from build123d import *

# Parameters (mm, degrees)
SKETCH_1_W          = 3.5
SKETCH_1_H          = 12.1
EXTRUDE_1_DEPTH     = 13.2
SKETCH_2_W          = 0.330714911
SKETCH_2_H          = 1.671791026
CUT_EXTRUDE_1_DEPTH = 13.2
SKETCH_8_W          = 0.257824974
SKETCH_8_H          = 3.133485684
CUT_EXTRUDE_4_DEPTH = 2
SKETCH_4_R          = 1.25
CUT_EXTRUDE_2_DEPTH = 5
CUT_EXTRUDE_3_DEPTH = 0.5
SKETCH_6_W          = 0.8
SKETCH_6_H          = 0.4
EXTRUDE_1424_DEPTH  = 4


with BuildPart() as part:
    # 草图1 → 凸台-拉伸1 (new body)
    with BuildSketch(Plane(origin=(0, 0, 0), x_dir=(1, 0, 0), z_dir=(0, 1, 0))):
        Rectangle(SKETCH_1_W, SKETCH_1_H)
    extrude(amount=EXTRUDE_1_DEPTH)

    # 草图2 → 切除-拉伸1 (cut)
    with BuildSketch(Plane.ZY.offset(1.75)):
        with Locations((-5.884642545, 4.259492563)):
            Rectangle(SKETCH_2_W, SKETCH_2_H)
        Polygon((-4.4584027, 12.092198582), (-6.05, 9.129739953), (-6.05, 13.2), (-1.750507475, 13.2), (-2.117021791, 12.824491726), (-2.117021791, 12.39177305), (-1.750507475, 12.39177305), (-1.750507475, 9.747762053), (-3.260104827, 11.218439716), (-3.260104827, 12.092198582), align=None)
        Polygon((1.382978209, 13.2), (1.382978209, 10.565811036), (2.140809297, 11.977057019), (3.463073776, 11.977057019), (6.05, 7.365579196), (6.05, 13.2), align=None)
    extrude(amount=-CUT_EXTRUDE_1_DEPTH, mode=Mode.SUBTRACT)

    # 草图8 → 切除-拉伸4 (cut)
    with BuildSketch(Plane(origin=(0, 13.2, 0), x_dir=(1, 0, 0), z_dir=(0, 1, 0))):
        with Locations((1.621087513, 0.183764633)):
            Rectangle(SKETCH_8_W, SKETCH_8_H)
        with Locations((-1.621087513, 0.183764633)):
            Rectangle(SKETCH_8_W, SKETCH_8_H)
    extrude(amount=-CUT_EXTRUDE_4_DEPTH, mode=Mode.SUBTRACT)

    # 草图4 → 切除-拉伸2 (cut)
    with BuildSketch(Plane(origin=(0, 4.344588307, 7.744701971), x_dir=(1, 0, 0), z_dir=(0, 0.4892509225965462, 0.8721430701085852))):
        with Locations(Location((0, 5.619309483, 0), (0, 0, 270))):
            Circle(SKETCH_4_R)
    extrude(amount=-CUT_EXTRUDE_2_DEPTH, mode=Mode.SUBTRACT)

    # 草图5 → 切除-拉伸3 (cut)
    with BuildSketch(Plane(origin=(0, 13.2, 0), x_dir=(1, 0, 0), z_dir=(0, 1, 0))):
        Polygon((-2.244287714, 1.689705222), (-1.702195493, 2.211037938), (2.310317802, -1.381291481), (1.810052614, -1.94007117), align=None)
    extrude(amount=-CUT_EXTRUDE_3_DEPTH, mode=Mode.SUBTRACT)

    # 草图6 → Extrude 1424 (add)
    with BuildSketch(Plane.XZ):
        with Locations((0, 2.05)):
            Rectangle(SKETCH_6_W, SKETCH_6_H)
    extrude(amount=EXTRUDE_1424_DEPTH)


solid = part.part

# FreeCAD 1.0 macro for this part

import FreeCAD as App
import Part
import Sketcher

V = App.Vector
Q = App.Units.Quantity

doc = App.newDocument("Part")
body = doc.addObject("PartDesign::Body", "Body")

# Sketch on XZ plane
sketch1 = body.newObject("Sketcher::SketchObject", "Sketch")
sketch1.AttachmentSupport = (doc.getObject("XZ_Plane"), [""])
sketch1.MapMode = "FlatFace"
sketch1.addGeometry([
    Part.LineSegment(V(-1.75, -6.05, 0), V(-1.75, 6.05, 0)),
    Part.LineSegment(V(-1.75, 6.05, 0), V(1.75, 6.05, 0)),
    Part.LineSegment(V(1.75, 6.05, 0), V(1.75, -6.05, 0)),
    Part.LineSegment(V(1.75, -6.05, 0), V(-1.75, -6.05, 0)),
], False)
sketch1.addConstraint([
    Sketcher.Constraint("Coincident", 0, 2, 1, 1),
    Sketcher.Constraint("Coincident", 1, 2, 2, 1),
    Sketcher.Constraint("Coincident", 2, 2, 3, 1),
    Sketcher.Constraint("Coincident", 3, 2, 0, 1),
    Sketcher.Constraint("Vertical", 0),
    Sketcher.Constraint("Horizontal", 1),
    Sketcher.Constraint("Vertical", 2),
    Sketcher.Constraint("Horizontal", 3),
    Sketcher.Constraint("Symmetric", 0, 2, 2, 2, -1, 1),
    Sketcher.Constraint("DistanceX", 1, 1, 1, 2, Q("3.5 mm")),
    Sketcher.Constraint("DistanceY", 0, 1, 0, 2, Q("12.1 mm")),
])
pad1 = body.newObject("PartDesign::Pad", "Pad")
pad1.Profile = sketch1
pad1.Length = 13.2
pad1.Reversed = True

# Sketch on YZ plane
sketch2 = body.newObject("Sketcher::SketchObject", "Sketch001")
sketch2.AttachmentSupport = (doc.getObject("YZ_Plane"), [""])
sketch2.MapMode = "FlatFace"
sketch2.AttachmentOffset = App.Placement(V(0, 0, -1.75), App.Rotation())
sketch2.addGeometry([
    Part.LineSegment(V(5.095388, -6.05, 0), V(3.423597, -6.05, 0)),  # 0
    Part.LineSegment(V(3.423597, -6.05, 0), V(3.423597, -5.719285, 0)),  # 1
    Part.LineSegment(V(3.423597, -5.719285, 0), V(5.095388, -5.719285, 0)),  # 2
    Part.LineSegment(V(5.095388, -5.719285, 0), V(5.095388, -6.05, 0)),  # 3
    Part.LineSegment(V(9.12974, -6.05, 0), V(12.092199, -4.458403, 0)),  # 4
    Part.LineSegment(V(12.092199, -4.458403, 0), V(12.092199, -3.260105, 0)),  # 5
    Part.LineSegment(V(12.092199, -3.260105, 0), V(11.21844, -3.260105, 0)),  # 6
    Part.LineSegment(V(11.21844, -3.260105, 0), V(9.747762, -1.750507, 0)),  # 7
    Part.LineSegment(V(9.747762, -1.750507, 0), V(12.391773, -1.750507, 0)),  # 8
    Part.LineSegment(V(12.391773, -1.750507, 0), V(12.391773, -2.117022, 0)),  # 9
    Part.LineSegment(V(12.391773, -2.117022, 0), V(12.824492, -2.117022, 0)),  # 10
    Part.LineSegment(V(12.824492, -2.117022, 0), V(13.2, -1.750507, 0)),  # 11
    Part.LineSegment(V(13.2, -1.750507, 0), V(13.2, -6.05, 0)),  # 12
    Part.LineSegment(V(13.2, -6.05, 0), V(9.12974, -6.05, 0)),  # 13
    Part.LineSegment(V(13.2, 1.382978, 0), V(10.565811, 1.382978, 0)),  # 14
    Part.LineSegment(V(10.565811, 1.382978, 0), V(11.977057, 2.140809, 0)),  # 15
    Part.LineSegment(V(11.977057, 2.140809, 0), V(11.977057, 3.463074, 0)),  # 16
    Part.LineSegment(V(11.977057, 3.463074, 0), V(7.365579, 6.05, 0)),  # 17
    Part.LineSegment(V(7.365579, 6.05, 0), V(13.2, 6.05, 0)),  # 18
    Part.LineSegment(V(13.2, 6.05, 0), V(13.2, 1.382978, 0)),  # 19
], False)
sketch2.addConstraint([
    Sketcher.Constraint("Coincident", 0, 2, 1, 1),
    Sketcher.Constraint("Coincident", 1, 2, 2, 1),
    Sketcher.Constraint("Coincident", 2, 2, 3, 1),
    Sketcher.Constraint("Coincident", 3, 2, 0, 1),
    Sketcher.Constraint("Coincident", 4, 2, 5, 1),
    Sketcher.Constraint("Coincident", 5, 2, 6, 1),
    Sketcher.Constraint("Coincident", 6, 2, 7, 1),
    Sketcher.Constraint("Coincident", 7, 2, 8, 1),
    Sketcher.Constraint("Coincident", 8, 2, 9, 1),
    Sketcher.Constraint("Coincident", 9, 2, 10, 1),
    Sketcher.Constraint("Coincident", 10, 2, 11, 1),
    Sketcher.Constraint("Coincident", 11, 2, 12, 1),
    Sketcher.Constraint("Coincident", 12, 2, 13, 1),
    Sketcher.Constraint("Coincident", 13, 2, 4, 1),
    Sketcher.Constraint("Coincident", 14, 2, 15, 1),
    Sketcher.Constraint("Coincident", 15, 2, 16, 1),
    Sketcher.Constraint("Coincident", 16, 2, 17, 1),
    Sketcher.Constraint("Coincident", 17, 2, 18, 1),
    Sketcher.Constraint("Coincident", 18, 2, 19, 1),
    Sketcher.Constraint("Coincident", 19, 2, 14, 1),
    Sketcher.Constraint("Horizontal", 0),
    Sketcher.Constraint("Vertical", 1),
    Sketcher.Constraint("Horizontal", 2),
    Sketcher.Constraint("Vertical", 3),
    Sketcher.Constraint("Vertical", 5),
    Sketcher.Constraint("Horizontal", 6),
    Sketcher.Constraint("Horizontal", 8),
    Sketcher.Constraint("Vertical", 9),
    Sketcher.Constraint("Horizontal", 10),
    Sketcher.Constraint("Vertical", 12),
    Sketcher.Constraint("Horizontal", 13),
    Sketcher.Constraint("Horizontal", 14),
    Sketcher.Constraint("Vertical", 16),
    Sketcher.Constraint("Horizontal", 18),
    Sketcher.Constraint("Vertical", 19),
    Sketcher.Constraint("Symmetric", 12, 2, 18, 2, -1),
    Sketcher.Constraint("Horizontal", 8, 2, 11, 2),
    Sketcher.Constraint("Horizontal", 3, 2, 12, 2),
    Sketcher.Constraint("DistanceX", -1, 1, 11, 2, Q("13.2 mm")),
    Sketcher.Constraint("DistanceY", 9, 2, 14, 2, Q("3.5 mm")),
    Sketcher.Constraint("DistanceY", 0, 2, -1, 1, Q("6.05 mm")),
    Sketcher.Constraint("DistanceX", 0, 2, 0, 1, Q("1.671791 mm")),
    Sketcher.Constraint("DistanceX", 6, 2, 6, 1, Q("0.873759 mm")),
    Sketcher.Constraint("DistanceX", 8, 1, 8, 2, Q("2.644011 mm")),
    Sketcher.Constraint("DistanceX", 10, 1, 10, 2, Q("0.432719 mm")),
    Sketcher.Constraint("DistanceX", 13, 2, 13, 1, Q("4.07026 mm")),
    Sketcher.Constraint("DistanceX", 14, 2, 14, 1, Q("2.634189 mm")),
    Sketcher.Constraint("DistanceX", 18, 1, 18, 2, Q("5.834421 mm")),
    Sketcher.Constraint("DistanceY", 19, 2, 19, 1, Q("4.667022 mm")),
    Sketcher.Constraint("DistanceX", -1, 1, 4, 2, Q("12.092199 mm")),
    Sketcher.Constraint("DistanceX", 1, 2, 4, 2, Q("8.668602 mm")),
    Sketcher.Constraint("Distance", 15, Q("1.60185 mm")),
    Sketcher.Constraint("DistanceY", 1, 1, 1, 2, Q("0.330715 mm")),
    Sketcher.Constraint("DistanceY", 5, 1, 5, 2, Q("1.198298 mm")),
    Sketcher.Constraint("DistanceY", 9, 2, 9, 1, Q("0.366514 mm")),
    Sketcher.Constraint("DistanceY", 16, 1, 16, 2, Q("1.322264 mm")),
    Sketcher.Constraint("DistanceX", -1, 1, 10, 2, Q("12.824492 mm")),
    Sketcher.Constraint("DistanceY", -1, 1, 15, 2, Q("2.140809 mm")),
    Sketcher.Constraint("DistanceY", 2, 2, 5, 2, Q("2.45918 mm")),
])
pocket1 = body.newObject("PartDesign::Pocket", "Pocket")
pocket1.Profile = sketch2
pocket1.Length = 13.2
pocket1.Reversed = True

# Sketch on XZ plane
sketch3 = body.newObject("Sketcher::SketchObject", "Sketch002")
sketch3.AttachmentSupport = (doc.getObject("XZ_Plane"), [""])
sketch3.MapMode = "FlatFace"
sketch3.AttachmentOffset = App.Placement(V(0, 0, -13.2), App.Rotation())
sketch3.addGeometry([
    Part.LineSegment(V(1.492175, -1.750507, 0), V(1.492175, 1.382978, 0)),  # 0
    Part.LineSegment(V(1.492175, 1.382978, 0), V(1.75, 1.382978, 0)),  # 1
    Part.LineSegment(V(1.75, 1.382978, 0), V(1.75, -1.750507, 0)),  # 2
    Part.LineSegment(V(1.75, -1.750507, 0), V(1.492175, -1.750507, 0)),  # 3
    Part.LineSegment(V(-1.75, -1.750507, 0), V(-1.75, 1.382978, 0)),  # 4
    Part.LineSegment(V(-1.75, 1.382978, 0), V(-1.492175, 1.382978, 0)),  # 5
    Part.LineSegment(V(-1.492175, 1.382978, 0), V(-1.492175, -1.750507, 0)),  # 6
    Part.LineSegment(V(-1.492175, -1.750507, 0), V(-1.75, -1.750507, 0)),  # 7
], False)
sketch3.addConstraint([
    Sketcher.Constraint("Coincident", 0, 2, 1, 1),
    Sketcher.Constraint("Coincident", 1, 2, 2, 1),
    Sketcher.Constraint("Coincident", 2, 2, 3, 1),
    Sketcher.Constraint("Coincident", 3, 2, 0, 1),
    Sketcher.Constraint("Coincident", 4, 2, 5, 1),
    Sketcher.Constraint("Coincident", 5, 2, 6, 1),
    Sketcher.Constraint("Coincident", 6, 2, 7, 1),
    Sketcher.Constraint("Coincident", 7, 2, 4, 1),
    Sketcher.Constraint("Vertical", 0),
    Sketcher.Constraint("Horizontal", 1),
    Sketcher.Constraint("Vertical", 2),
    Sketcher.Constraint("Horizontal", 3),
    Sketcher.Constraint("Vertical", 4),
    Sketcher.Constraint("Horizontal", 5),
    Sketcher.Constraint("Vertical", 6),
    Sketcher.Constraint("Horizontal", 7),
    Sketcher.Constraint("Symmetric", 1, 2, 4, 2, -2),
    Sketcher.Constraint("Symmetric", 3, 2, 6, 2, -2),
    Sketcher.Constraint("DistanceX", 4, 2, 1, 2, Q("3.5 mm")),
    Sketcher.Constraint("DistanceX", 1, 1, 1, 2, Q("0.257825 mm")),
    Sketcher.Constraint("DistanceY", 0, 1, 0, 2, Q("3.133486 mm")),
    Sketcher.Constraint("DistanceY", -1, 1, 0, 2, Q("1.382978 mm")),
])
pocket2 = body.newObject("PartDesign::Pocket", "Pocket001")
pocket2.Profile = sketch3
pocket2.Length = 2
pocket2.Reversed = True

# Sketch on an angled plane
sketch4 = body.newObject("Sketcher::SketchObject", "Sketch003")
sketch4.Placement = App.Placement(V(0, 4.344588, 7.744702), App.Rotation(V(1, 0, 0), V(0, 0.87214307, -0.489250923), V(0, 0.489250923, 0.87214307), "ZXY"))
sketch4.addGeometry(Part.Circle(V(0, 5.619309, 0), V(0, 0, 1), 1.25), False)
sketch4.addConstraint([
    Sketcher.Constraint("PointOnObject", 0, 3, -2),
    Sketcher.Constraint("Diameter", 0, Q("2.5 mm")),
    Sketcher.Constraint("DistanceY", -1, 1, 0, 3, Q("5.619309 mm")),
])
pocket3 = body.newObject("PartDesign::Pocket", "Pocket002")
pocket3.Profile = sketch4
pocket3.Length = 5

# Sketch on XZ plane
sketch5 = body.newObject("Sketcher::SketchObject", "Sketch004")
sketch5.AttachmentSupport = (doc.getObject("XZ_Plane"), [""])
sketch5.MapMode = "FlatFace"
sketch5.AttachmentOffset = App.Placement(V(0, 0, -13.2), App.Rotation())
sketch5.addGeometry([
    Part.LineSegment(V(-1.702195, -2.211038, 0), V(-2.244288, -1.689705, 0)),
    Part.LineSegment(V(-2.244288, -1.689705, 0), V(1.810053, 1.940071, 0)),
    Part.LineSegment(V(1.810053, 1.940071, 0), V(2.310318, 1.381291, 0)),
    Part.LineSegment(V(2.310318, 1.381291, 0), V(-1.702195, -2.211038, 0)),
], False)
sketch5.addConstraint([
    Sketcher.Constraint("Coincident", 0, 2, 1, 1),
    Sketcher.Constraint("Coincident", 1, 2, 2, 1),
    Sketcher.Constraint("Coincident", 2, 2, 3, 1),
    Sketcher.Constraint("Coincident", 3, 2, 0, 1),
    Sketcher.Constraint("Perpendicular", 1, 2),
    Sketcher.Constraint("Perpendicular", 2, 3),
    Sketcher.Constraint("Distance", 2, Q("0.75 mm")),
    Sketcher.Constraint("Distance", 0, Q("0.752098 mm")),
    Sketcher.Constraint("Distance", 1, Q("5.441778 mm")),
    Sketcher.Constraint("DistanceY", -1, 1, 1, 2, Q("1.940071 mm")),
    Sketcher.Constraint("DistanceY", -1, 1, 2, 2, Q("1.381291 mm")),
    Sketcher.Constraint("DistanceX", 0, 2, -1, 1, Q("2.244288 mm")),
])
pocket4 = body.newObject("PartDesign::Pocket", "Pocket003")
pocket4.Profile = sketch5
pocket4.Length = 0.5
pocket4.Reversed = True

# Sketch on XZ plane
sketch6 = body.newObject("Sketcher::SketchObject", "Sketch005")
sketch6.AttachmentSupport = (doc.getObject("XZ_Plane"), [""])
sketch6.MapMode = "FlatFace"
sketch6.addGeometry([
    Part.LineSegment(V(-0.4, 2.25, 0), V(-0.4, 1.85, 0)),
    Part.LineSegment(V(-0.4, 1.85, 0), V(0.4, 1.85, 0)),
    Part.LineSegment(V(0.4, 1.85, 0), V(0.4, 2.25, 0)),
    Part.LineSegment(V(0.4, 2.25, 0), V(-0.4, 2.25, 0)),
], False)
sketch6.addConstraint([
    Sketcher.Constraint("Coincident", 0, 2, 1, 1),
    Sketcher.Constraint("Coincident", 1, 2, 2, 1),
    Sketcher.Constraint("Coincident", 2, 2, 3, 1),
    Sketcher.Constraint("Coincident", 3, 2, 0, 1),
    Sketcher.Constraint("Vertical", 0),
    Sketcher.Constraint("Horizontal", 1),
    Sketcher.Constraint("Vertical", 2),
    Sketcher.Constraint("Horizontal", 3),
    Sketcher.Constraint("DistanceX", 1, 1, 1, 2, Q("0.8 mm")),
    Sketcher.Constraint("DistanceY", 0, 2, 0, 1, Q("0.4 mm")),
    Sketcher.Constraint("DistanceX", 0, 2, -1, 1, Q("0.4 mm")),
    Sketcher.Constraint("DistanceY", -1, 1, 0, 2, Q("1.85 mm")),
])
pad2 = body.newObject("PartDesign::Pad", "Pad001")
pad2.Profile = sketch6
pad2.Length = 4

doc.recompute()
